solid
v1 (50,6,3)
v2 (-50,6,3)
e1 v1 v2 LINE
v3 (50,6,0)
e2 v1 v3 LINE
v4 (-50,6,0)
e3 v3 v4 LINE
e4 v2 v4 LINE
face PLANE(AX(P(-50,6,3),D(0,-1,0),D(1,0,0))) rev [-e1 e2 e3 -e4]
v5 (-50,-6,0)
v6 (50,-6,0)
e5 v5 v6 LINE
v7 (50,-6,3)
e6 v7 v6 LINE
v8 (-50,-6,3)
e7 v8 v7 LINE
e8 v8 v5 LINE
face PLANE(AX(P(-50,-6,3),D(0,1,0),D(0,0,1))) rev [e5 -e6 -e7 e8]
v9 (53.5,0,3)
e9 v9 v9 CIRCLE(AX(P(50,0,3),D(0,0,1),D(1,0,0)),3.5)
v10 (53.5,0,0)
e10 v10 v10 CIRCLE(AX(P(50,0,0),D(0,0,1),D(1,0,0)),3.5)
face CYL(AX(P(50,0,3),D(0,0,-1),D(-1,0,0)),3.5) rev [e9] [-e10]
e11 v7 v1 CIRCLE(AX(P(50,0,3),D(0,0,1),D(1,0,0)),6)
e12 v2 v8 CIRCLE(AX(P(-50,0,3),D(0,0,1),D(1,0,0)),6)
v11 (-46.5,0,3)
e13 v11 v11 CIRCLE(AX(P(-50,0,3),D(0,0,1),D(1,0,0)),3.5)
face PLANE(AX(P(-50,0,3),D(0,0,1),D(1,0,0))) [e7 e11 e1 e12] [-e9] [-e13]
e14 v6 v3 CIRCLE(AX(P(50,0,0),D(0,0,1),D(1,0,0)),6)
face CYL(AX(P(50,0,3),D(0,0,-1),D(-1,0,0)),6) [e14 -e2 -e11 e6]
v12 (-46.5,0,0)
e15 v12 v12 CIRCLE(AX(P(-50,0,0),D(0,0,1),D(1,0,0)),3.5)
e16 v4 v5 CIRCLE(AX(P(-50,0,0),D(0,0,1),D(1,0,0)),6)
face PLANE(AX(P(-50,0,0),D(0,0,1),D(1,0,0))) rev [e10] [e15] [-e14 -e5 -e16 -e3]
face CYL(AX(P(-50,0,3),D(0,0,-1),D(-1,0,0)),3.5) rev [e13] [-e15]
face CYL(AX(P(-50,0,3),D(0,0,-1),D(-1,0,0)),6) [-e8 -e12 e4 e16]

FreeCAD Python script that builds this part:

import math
import FreeCAD as App
import Part
import Sketcher

doc = App.newDocument("Part")
body = doc.addObject("PartDesign::Body", "Body")

sketch1 = body.newObject("Sketcher::SketchObject", "Sketch")
sketch1.AttachmentSupport = (doc.getObject("XY_Plane"), [""])
sketch1.MapMode = "FlatFace"
sketch1.addGeometry(Part.LineSegment(App.Vector(50, 6, 0), App.Vector(-50, 6, 0)), False)
sketch1.addGeometry(Part.ArcOfCircle(Part.Circle(App.Vector(-50, 0, 0), App.Vector(0, 0, 1), 6), math.radians(90), math.radians(270)), False)
sketch1.addGeometry(Part.LineSegment(App.Vector(-50, -6, 0), App.Vector(50, -6, 0)), False)
sketch1.addGeometry(Part.ArcOfCircle(Part.Circle(App.Vector(50, 0, 0), App.Vector(0, 0, 1), 6), math.radians(-90), math.radians(90)), False)
sketch1.addGeometry(Part.Circle(App.Vector(50, 0, 0), App.Vector(0, 0, 1), 3.5), False)
sketch1.addGeometry(Part.Circle(App.Vector(-50, 0, 0), App.Vector(0, 0, 1), 3.5), False)
sketch1.addConstraint(Sketcher.Constraint("Tangent", 0, 2, 1, 1))
sketch1.addConstraint(Sketcher.Constraint("Tangent", 1, 2, 2, 1))
sketch1.addConstraint(Sketcher.Constraint("Tangent", 2, 2, 3, 1))
sketch1.addConstraint(Sketcher.Constraint("Tangent", 3, 2, 0, 1))
sketch1.addConstraint(Sketcher.Constraint("Horizontal", 0))
sketch1.addConstraint(Sketcher.Constraint("Horizontal", 2))
sketch1.addConstraint(Sketcher.Constraint("Coincident", 4, 3, 3, 3))
sketch1.addConstraint(Sketcher.Constraint("Coincident", 5, 3, 1, 3))
sketch1.addConstraint(Sketcher.Constraint("Equal", 4, 5))
sketch1.addConstraint(Sketcher.Constraint("Symmetric", 1, 3, 3, 3, -1, 1))
sketch1.addConstraint(Sketcher.Constraint("Diameter", 4, 7.0))
sketch1.addConstraint(Sketcher.Constraint("Radius", 1, 6.0))
sketch1.addConstraint(Sketcher.Constraint("DistanceX", 0, 2, 0, 1, 100.0))
pad1 = body.newObject("PartDesign::Pad", "Pad")
pad1.Profile = sketch1
pad1.Length = 3

doc.recompute()
